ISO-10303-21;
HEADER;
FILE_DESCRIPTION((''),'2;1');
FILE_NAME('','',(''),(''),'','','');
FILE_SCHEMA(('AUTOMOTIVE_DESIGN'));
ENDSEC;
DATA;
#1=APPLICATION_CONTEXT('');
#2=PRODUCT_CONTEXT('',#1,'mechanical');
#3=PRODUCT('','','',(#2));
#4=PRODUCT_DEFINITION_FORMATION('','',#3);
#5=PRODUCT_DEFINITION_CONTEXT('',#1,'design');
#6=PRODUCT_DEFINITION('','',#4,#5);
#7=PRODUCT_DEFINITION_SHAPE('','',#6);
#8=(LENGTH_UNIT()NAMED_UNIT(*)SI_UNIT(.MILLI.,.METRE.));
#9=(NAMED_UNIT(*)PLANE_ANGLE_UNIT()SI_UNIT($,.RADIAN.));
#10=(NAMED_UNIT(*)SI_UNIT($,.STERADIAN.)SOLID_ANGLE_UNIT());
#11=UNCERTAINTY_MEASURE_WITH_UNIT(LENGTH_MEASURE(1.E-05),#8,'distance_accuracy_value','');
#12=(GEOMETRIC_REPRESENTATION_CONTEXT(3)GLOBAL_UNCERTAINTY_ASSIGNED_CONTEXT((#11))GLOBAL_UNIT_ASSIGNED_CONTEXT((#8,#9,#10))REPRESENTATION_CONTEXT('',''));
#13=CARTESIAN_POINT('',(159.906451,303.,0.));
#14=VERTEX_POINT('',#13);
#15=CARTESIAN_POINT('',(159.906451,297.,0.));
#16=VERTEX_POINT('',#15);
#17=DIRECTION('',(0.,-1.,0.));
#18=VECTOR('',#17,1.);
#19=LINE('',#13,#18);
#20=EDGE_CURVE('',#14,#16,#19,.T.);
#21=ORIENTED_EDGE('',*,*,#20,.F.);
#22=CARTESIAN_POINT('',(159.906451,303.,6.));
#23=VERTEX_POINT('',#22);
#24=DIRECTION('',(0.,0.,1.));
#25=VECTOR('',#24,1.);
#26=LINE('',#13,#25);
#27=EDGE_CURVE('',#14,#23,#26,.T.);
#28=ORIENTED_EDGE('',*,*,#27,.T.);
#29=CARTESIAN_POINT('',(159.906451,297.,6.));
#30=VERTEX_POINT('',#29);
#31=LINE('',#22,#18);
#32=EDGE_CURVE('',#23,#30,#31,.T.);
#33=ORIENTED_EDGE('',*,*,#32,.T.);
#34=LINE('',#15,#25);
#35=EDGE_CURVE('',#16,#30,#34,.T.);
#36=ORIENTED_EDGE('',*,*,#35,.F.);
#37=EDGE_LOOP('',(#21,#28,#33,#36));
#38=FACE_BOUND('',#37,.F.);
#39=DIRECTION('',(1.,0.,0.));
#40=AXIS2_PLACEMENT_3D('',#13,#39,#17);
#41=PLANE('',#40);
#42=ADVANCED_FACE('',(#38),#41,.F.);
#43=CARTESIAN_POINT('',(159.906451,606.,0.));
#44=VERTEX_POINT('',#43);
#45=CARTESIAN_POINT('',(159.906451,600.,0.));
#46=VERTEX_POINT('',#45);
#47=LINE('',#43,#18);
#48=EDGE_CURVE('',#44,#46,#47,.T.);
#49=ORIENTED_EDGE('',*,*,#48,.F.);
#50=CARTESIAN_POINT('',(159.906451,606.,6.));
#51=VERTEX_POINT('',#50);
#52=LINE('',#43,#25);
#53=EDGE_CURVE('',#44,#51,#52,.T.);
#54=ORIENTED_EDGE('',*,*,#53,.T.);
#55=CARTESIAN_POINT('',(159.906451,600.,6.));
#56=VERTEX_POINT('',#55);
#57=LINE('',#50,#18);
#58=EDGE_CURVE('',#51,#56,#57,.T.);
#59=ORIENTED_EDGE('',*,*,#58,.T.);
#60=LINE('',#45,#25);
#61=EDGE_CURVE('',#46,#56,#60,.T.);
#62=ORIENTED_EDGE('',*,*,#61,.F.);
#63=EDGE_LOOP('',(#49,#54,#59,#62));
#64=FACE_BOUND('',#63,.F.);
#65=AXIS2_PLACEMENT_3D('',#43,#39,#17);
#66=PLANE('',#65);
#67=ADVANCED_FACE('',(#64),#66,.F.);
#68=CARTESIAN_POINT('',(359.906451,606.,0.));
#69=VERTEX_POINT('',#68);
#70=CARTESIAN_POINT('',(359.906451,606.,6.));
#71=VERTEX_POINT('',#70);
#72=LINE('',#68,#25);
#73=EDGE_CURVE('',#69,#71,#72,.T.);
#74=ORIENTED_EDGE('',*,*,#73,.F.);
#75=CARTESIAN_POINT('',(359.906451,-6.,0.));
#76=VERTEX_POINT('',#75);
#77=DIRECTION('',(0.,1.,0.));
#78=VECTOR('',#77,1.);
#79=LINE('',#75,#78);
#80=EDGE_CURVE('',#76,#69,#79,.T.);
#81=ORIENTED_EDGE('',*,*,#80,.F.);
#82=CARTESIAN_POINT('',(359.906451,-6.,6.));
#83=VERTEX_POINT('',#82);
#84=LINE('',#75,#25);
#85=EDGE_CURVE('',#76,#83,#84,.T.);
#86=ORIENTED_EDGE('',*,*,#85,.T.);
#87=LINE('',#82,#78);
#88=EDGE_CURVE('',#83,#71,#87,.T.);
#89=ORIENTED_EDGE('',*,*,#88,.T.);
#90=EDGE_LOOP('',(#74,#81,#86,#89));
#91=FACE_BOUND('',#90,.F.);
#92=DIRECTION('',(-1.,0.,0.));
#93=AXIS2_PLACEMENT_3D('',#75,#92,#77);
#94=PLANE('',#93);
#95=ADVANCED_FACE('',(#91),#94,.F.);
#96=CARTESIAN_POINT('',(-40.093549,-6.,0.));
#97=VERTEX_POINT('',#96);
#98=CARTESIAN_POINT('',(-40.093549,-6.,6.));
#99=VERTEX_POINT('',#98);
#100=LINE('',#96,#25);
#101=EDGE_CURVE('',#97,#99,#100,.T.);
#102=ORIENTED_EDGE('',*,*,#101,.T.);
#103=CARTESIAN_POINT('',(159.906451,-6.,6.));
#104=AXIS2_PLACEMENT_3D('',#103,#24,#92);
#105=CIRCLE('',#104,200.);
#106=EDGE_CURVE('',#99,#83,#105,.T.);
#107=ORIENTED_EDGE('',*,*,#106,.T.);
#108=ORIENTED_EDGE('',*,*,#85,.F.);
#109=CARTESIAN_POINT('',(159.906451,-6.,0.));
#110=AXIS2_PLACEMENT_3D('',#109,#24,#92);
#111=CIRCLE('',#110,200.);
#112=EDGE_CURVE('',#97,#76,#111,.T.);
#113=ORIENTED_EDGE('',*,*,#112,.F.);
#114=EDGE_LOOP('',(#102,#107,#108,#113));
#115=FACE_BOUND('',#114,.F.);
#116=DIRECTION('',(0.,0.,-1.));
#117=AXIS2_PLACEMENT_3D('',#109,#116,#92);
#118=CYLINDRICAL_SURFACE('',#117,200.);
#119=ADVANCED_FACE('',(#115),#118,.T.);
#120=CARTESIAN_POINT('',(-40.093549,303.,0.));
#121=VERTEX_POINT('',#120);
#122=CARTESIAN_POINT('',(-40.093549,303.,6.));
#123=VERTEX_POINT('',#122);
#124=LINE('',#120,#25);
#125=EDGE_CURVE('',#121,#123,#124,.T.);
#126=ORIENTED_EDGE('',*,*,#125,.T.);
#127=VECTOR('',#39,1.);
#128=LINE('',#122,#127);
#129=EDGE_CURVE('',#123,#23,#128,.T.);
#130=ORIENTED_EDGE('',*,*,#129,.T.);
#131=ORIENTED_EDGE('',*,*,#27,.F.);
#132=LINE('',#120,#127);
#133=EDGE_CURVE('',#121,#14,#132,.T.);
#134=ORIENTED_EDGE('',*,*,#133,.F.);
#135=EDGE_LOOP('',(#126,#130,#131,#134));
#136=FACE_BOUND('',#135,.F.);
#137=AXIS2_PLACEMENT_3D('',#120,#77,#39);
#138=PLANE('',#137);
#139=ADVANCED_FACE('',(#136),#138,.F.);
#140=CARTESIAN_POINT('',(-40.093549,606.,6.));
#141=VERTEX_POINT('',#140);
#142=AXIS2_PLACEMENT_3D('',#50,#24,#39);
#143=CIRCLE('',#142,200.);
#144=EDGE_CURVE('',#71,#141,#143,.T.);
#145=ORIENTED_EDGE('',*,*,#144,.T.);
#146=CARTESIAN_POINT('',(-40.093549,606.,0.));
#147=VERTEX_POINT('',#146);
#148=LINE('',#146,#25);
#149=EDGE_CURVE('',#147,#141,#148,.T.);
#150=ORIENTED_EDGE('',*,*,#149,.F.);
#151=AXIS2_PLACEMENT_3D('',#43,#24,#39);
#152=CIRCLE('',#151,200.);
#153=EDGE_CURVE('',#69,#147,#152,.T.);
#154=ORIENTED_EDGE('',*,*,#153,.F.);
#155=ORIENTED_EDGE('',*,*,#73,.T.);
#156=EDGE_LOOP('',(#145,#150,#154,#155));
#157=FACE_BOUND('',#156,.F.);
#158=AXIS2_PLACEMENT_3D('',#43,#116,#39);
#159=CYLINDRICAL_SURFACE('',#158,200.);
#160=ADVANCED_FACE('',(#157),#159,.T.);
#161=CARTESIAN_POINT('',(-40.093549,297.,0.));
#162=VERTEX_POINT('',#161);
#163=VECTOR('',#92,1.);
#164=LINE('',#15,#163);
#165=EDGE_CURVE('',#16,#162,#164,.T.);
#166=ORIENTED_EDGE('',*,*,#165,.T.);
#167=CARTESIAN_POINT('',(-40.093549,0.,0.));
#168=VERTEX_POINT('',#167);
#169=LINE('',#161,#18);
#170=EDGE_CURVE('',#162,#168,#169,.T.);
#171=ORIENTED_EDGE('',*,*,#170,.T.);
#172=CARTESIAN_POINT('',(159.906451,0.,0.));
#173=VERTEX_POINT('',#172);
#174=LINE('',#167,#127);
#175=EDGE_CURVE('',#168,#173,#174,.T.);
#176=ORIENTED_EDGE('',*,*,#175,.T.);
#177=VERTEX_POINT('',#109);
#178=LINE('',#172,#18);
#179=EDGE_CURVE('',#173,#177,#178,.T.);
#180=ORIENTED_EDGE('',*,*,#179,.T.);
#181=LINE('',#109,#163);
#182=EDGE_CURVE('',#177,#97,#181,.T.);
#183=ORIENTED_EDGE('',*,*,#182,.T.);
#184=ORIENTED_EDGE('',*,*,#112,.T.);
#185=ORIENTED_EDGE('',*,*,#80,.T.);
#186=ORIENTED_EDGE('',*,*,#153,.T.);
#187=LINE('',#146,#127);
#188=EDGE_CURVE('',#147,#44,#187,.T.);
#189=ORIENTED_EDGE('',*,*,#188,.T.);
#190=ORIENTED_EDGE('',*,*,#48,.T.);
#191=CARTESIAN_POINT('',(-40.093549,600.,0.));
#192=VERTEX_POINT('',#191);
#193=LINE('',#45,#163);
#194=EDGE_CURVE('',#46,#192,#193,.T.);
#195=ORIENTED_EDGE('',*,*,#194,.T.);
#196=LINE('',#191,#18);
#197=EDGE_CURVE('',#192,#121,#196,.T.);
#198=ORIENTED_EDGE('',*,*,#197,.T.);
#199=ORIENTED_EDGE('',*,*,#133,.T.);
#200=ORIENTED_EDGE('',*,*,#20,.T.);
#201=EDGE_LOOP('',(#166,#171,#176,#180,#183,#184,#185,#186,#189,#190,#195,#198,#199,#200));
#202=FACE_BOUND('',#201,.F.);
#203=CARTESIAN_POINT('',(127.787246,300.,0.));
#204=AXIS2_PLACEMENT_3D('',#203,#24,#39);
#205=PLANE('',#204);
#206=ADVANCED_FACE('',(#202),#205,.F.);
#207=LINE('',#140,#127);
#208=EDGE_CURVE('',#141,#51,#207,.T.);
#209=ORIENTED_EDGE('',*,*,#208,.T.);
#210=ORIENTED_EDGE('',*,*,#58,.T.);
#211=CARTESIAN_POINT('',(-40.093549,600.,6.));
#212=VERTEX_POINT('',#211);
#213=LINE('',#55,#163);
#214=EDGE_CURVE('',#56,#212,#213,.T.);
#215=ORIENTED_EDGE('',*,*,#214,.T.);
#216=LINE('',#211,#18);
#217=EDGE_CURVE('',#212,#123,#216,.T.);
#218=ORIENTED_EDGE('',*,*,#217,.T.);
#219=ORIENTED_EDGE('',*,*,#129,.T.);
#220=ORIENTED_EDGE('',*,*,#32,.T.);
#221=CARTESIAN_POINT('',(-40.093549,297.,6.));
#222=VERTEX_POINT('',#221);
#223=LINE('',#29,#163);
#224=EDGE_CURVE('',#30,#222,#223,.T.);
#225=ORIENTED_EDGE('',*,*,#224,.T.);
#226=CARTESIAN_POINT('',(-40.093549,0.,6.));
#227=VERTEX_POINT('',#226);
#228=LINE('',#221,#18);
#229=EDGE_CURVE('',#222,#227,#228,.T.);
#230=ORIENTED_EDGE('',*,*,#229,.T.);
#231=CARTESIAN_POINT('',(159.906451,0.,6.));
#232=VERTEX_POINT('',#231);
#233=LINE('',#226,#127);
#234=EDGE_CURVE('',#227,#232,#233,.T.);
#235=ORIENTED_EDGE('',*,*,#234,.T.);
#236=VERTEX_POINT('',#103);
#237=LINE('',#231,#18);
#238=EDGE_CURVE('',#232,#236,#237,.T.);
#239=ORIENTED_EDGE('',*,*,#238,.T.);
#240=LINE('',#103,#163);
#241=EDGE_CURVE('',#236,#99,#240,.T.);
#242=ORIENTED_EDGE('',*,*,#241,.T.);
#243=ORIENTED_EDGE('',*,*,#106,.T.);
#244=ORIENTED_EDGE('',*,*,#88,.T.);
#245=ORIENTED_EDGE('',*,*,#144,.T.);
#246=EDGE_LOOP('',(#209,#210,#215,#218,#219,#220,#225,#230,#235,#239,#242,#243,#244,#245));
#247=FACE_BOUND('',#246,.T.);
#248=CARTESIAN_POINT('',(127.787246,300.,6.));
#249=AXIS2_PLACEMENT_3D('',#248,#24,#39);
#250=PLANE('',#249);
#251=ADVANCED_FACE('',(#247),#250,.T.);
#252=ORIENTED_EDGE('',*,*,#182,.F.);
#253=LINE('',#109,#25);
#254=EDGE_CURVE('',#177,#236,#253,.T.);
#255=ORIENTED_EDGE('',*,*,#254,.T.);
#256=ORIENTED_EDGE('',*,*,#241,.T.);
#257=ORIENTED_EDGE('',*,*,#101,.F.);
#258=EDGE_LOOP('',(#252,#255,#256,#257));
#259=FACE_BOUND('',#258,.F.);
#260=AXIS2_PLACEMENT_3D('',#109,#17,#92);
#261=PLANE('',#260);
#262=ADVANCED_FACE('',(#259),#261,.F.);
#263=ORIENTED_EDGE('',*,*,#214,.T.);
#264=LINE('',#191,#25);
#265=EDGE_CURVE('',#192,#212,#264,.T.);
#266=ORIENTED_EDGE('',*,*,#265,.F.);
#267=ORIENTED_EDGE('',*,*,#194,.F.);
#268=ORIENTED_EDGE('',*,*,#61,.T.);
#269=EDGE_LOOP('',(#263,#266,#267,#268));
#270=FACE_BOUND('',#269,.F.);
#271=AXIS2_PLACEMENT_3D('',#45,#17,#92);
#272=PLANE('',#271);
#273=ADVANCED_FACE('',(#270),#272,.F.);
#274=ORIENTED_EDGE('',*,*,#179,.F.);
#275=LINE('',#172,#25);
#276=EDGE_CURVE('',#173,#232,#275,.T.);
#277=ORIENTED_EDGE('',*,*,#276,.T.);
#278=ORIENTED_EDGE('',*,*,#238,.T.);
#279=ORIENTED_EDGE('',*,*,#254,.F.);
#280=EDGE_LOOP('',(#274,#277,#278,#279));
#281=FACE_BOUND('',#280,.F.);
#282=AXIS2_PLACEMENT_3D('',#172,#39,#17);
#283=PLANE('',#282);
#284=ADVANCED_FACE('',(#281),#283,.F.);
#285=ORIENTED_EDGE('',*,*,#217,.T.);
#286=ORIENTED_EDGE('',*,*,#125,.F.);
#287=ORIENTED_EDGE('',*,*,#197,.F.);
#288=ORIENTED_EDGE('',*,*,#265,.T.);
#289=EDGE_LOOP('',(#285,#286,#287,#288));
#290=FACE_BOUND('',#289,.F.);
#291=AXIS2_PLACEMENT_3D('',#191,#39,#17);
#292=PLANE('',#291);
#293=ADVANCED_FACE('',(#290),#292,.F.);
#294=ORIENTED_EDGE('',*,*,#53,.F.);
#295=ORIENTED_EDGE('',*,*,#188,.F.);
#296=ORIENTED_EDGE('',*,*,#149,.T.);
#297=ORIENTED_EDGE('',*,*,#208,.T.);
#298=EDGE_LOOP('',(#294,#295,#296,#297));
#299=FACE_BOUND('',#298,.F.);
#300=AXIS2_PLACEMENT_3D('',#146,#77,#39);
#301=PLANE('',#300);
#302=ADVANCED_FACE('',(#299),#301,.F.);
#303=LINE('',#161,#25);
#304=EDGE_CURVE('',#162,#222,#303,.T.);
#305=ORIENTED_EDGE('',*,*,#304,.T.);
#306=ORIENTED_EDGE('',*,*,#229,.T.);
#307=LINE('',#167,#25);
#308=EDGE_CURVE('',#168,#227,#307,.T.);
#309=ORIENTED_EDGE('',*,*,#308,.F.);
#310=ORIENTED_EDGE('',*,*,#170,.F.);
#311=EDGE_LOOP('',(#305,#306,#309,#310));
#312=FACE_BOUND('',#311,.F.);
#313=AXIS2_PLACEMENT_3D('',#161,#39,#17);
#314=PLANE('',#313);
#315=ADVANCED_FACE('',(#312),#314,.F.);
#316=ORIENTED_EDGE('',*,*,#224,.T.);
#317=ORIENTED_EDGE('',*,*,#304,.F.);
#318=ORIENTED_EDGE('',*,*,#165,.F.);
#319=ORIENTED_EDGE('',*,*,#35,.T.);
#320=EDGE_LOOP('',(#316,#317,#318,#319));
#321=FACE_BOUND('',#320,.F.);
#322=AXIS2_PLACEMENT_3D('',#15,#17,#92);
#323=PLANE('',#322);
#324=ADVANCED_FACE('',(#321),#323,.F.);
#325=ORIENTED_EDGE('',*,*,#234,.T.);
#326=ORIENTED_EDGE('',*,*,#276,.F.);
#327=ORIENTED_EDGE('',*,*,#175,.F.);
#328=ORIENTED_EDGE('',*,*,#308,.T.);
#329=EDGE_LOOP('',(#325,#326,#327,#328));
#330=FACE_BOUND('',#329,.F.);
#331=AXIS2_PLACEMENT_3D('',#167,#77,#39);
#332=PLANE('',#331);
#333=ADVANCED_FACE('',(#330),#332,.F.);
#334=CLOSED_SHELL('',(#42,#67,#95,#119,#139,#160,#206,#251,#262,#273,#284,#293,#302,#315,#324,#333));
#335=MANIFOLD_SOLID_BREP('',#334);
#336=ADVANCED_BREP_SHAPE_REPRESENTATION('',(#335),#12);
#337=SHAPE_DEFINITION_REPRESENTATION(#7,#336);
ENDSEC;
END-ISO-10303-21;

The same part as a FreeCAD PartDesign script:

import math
import FreeCAD as App
import Part
import Sketcher

doc = App.newDocument("Part")
body = doc.addObject("PartDesign::Body", "Body")

# Sketch on XY plane
sketch1 = doc.addObject("Sketcher::SketchObject", "Sketch")
body.addObject(sketch1)
sketch1.AttachmentSupport = (doc.XY_Plane, [""])
sketch1.MapMode = "FlatFace"
sketch1.addGeometry(Part.ArcOfCircle(Part.Circle(App.Vector(160, 606, 0), App.Vector(0, 0, 1), 200), math.radians(0), math.radians(180)), False)
sketch1.addGeometry(Part.LineSegment(App.Vector(-40, 606, 0), App.Vector(160, 606, 0)), False)
sketch1.addGeometry(Part.LineSegment(App.Vector(160, 606, 0), App.Vector(160, 600, 0)), False)
sketch1.addGeometry(Part.LineSegment(App.Vector(160, 600, 0), App.Vector(-40, 600, 0)), False)
sketch1.addGeometry(Part.LineSegment(App.Vector(-40, 600, 0), App.Vector(-40, 303, 0)), False)
sketch1.addGeometry(Part.LineSegment(App.Vector(-40, 303, 0), App.Vector(160, 303, 0)), False)
sketch1.addGeometry(Part.LineSegment(App.Vector(160, 303, 0), App.Vector(160, 297, 0)), False)
sketch1.addGeometry(Part.LineSegment(App.Vector(160, 297, 0), App.Vector(-40, 297, 0)), False)
sketch1.addGeometry(Part.LineSegment(App.Vector(-40, 297, 0), App.Vector(-40, 0, 0)), False)
sketch1.addGeometry(Part.LineSegment(App.Vector(-40, 0, 0), App.Vector(160, 0, 0)), False)
sketch1.addGeometry(Part.LineSegment(App.Vector(160, 0, 0), App.Vector(160, -6, 0)), False)
sketch1.addGeometry(Part.LineSegment(App.Vector(160, -6, 0), App.Vector(-40, -6, 0)), False)
sketch1.addGeometry(Part.ArcOfCircle(Part.Circle(App.Vector(160, -6, 0), App.Vector(0, 0, 1), 200), math.radians(180), math.radians(360)), False)
sketch1.addGeometry(Part.LineSegment(App.Vector(360, -6, 0), App.Vector(360, 606, 0)), False)
sketch1.addConstraint(Sketcher.Constraint("Coincident", 0, 2, 1, 1))
sketch1.addConstraint(Sketcher.Constraint("Coincident", 1, 2, 2, 1))
sketch1.addConstraint(Sketcher.Constraint("Coincident", 2, 2, 3, 1))
sketch1.addConstraint(Sketcher.Constraint("Coincident", 3, 2, 4, 1))
sketch1.addConstraint(Sketcher.Constraint("Coincident", 4, 2, 5, 1))
sketch1.addConstraint(Sketcher.Constraint("Coincident", 5, 2, 6, 1))
sketch1.addConstraint(Sketcher.Constraint("Coincident", 6, 2, 7, 1))
sketch1.addConstraint(Sketcher.Constraint("Coincident", 7, 2, 8, 1))
sketch1.addConstraint(Sketcher.Constraint("Coincident", 8, 2, 9, 1))
sketch1.addConstraint(Sketcher.Constraint("Coincident", 9, 2, 10, 1))
sketch1.addConstraint(Sketcher.Constraint("Coincident", 10, 2, 11, 1))
sketch1.addConstraint(Sketcher.Constraint("Coincident", 11, 2, 12, 1))
sketch1.addConstraint(Sketcher.Constraint("Tangent", 12, 2, 13, 1))
sketch1.addConstraint(Sketcher.Constraint("Tangent", 13, 2, 0, 1))
sketch1.addConstraint(Sketcher.Constraint("Horizontal", 1))
sketch1.addConstraint(Sketcher.Constraint("Vertical", 2))
sketch1.addConstraint(Sketcher.Constraint("Horizontal", 3))
sketch1.addConstraint(Sketcher.Constraint("Vertical", 4))
sketch1.addConstraint(Sketcher.Constraint("Horizontal", 5))
sketch1.addConstraint(Sketcher.Constraint("Vertical", 6))
sketch1.addConstraint(Sketcher.Constraint("Horizontal", 7))
sketch1.addConstraint(Sketcher.Constraint("Vertical", 8))
sketch1.addConstraint(Sketcher.Constraint("Horizontal", 9))
sketch1.addConstraint(Sketcher.Constraint("Vertical", 10))
sketch1.addConstraint(Sketcher.Constraint("Horizontal", 11))
sketch1.addConstraint(Sketcher.Constraint("Vertical", 13))
sketch1.addConstraint(Sketcher.Constraint("Coincident", 1, 2, 0, 3))
sketch1.addConstraint(Sketcher.Constraint("Coincident", 10, 2, 12, 3))
sketch1.addConstraint(Sketcher.Constraint("Equal", 0, 12))
sketch1.addConstraint(Sketcher.Constraint("PointOnObject", 8, 2, -1))
sketch1.addConstraint(Sketcher.Constraint("Vertical", 0, 2, 3, 2))
sketch1.addConstraint(Sketcher.Constraint("Vertical", 2, 2, 5, 2))
sketch1.addConstraint(Sketcher.Constraint("Vertical", 4, 2, 7, 2))
sketch1.addConstraint(Sketcher.Constraint("Equal", 2, 6))
sketch1.addConstraint(Sketcher.Constraint("Equal", 4, 8))
sketch1.addConstraint(Sketcher.Constraint("Equal", 6, 10))
sketch1.addConstraint(Sketcher.Constraint("Radius", 0, 200.0))
sketch1.addConstraint(Sketcher.Constraint("DistanceY", 2, 2, 2, 1, 6.0))
sketch1.addConstraint(Sketcher.Constraint("DistanceY", 4, 2, 4, 1, 297.0))
sketch1.addConstraint(Sketcher.Constraint("DistanceX", -1, 1, 0, 3, 159.906451))
pad1 = doc.addObject("PartDesign::Pad", "Pad")
body.addObject(pad1)
pad1.Profile = sketch1
pad1.Length = 6

doc.recompute()
